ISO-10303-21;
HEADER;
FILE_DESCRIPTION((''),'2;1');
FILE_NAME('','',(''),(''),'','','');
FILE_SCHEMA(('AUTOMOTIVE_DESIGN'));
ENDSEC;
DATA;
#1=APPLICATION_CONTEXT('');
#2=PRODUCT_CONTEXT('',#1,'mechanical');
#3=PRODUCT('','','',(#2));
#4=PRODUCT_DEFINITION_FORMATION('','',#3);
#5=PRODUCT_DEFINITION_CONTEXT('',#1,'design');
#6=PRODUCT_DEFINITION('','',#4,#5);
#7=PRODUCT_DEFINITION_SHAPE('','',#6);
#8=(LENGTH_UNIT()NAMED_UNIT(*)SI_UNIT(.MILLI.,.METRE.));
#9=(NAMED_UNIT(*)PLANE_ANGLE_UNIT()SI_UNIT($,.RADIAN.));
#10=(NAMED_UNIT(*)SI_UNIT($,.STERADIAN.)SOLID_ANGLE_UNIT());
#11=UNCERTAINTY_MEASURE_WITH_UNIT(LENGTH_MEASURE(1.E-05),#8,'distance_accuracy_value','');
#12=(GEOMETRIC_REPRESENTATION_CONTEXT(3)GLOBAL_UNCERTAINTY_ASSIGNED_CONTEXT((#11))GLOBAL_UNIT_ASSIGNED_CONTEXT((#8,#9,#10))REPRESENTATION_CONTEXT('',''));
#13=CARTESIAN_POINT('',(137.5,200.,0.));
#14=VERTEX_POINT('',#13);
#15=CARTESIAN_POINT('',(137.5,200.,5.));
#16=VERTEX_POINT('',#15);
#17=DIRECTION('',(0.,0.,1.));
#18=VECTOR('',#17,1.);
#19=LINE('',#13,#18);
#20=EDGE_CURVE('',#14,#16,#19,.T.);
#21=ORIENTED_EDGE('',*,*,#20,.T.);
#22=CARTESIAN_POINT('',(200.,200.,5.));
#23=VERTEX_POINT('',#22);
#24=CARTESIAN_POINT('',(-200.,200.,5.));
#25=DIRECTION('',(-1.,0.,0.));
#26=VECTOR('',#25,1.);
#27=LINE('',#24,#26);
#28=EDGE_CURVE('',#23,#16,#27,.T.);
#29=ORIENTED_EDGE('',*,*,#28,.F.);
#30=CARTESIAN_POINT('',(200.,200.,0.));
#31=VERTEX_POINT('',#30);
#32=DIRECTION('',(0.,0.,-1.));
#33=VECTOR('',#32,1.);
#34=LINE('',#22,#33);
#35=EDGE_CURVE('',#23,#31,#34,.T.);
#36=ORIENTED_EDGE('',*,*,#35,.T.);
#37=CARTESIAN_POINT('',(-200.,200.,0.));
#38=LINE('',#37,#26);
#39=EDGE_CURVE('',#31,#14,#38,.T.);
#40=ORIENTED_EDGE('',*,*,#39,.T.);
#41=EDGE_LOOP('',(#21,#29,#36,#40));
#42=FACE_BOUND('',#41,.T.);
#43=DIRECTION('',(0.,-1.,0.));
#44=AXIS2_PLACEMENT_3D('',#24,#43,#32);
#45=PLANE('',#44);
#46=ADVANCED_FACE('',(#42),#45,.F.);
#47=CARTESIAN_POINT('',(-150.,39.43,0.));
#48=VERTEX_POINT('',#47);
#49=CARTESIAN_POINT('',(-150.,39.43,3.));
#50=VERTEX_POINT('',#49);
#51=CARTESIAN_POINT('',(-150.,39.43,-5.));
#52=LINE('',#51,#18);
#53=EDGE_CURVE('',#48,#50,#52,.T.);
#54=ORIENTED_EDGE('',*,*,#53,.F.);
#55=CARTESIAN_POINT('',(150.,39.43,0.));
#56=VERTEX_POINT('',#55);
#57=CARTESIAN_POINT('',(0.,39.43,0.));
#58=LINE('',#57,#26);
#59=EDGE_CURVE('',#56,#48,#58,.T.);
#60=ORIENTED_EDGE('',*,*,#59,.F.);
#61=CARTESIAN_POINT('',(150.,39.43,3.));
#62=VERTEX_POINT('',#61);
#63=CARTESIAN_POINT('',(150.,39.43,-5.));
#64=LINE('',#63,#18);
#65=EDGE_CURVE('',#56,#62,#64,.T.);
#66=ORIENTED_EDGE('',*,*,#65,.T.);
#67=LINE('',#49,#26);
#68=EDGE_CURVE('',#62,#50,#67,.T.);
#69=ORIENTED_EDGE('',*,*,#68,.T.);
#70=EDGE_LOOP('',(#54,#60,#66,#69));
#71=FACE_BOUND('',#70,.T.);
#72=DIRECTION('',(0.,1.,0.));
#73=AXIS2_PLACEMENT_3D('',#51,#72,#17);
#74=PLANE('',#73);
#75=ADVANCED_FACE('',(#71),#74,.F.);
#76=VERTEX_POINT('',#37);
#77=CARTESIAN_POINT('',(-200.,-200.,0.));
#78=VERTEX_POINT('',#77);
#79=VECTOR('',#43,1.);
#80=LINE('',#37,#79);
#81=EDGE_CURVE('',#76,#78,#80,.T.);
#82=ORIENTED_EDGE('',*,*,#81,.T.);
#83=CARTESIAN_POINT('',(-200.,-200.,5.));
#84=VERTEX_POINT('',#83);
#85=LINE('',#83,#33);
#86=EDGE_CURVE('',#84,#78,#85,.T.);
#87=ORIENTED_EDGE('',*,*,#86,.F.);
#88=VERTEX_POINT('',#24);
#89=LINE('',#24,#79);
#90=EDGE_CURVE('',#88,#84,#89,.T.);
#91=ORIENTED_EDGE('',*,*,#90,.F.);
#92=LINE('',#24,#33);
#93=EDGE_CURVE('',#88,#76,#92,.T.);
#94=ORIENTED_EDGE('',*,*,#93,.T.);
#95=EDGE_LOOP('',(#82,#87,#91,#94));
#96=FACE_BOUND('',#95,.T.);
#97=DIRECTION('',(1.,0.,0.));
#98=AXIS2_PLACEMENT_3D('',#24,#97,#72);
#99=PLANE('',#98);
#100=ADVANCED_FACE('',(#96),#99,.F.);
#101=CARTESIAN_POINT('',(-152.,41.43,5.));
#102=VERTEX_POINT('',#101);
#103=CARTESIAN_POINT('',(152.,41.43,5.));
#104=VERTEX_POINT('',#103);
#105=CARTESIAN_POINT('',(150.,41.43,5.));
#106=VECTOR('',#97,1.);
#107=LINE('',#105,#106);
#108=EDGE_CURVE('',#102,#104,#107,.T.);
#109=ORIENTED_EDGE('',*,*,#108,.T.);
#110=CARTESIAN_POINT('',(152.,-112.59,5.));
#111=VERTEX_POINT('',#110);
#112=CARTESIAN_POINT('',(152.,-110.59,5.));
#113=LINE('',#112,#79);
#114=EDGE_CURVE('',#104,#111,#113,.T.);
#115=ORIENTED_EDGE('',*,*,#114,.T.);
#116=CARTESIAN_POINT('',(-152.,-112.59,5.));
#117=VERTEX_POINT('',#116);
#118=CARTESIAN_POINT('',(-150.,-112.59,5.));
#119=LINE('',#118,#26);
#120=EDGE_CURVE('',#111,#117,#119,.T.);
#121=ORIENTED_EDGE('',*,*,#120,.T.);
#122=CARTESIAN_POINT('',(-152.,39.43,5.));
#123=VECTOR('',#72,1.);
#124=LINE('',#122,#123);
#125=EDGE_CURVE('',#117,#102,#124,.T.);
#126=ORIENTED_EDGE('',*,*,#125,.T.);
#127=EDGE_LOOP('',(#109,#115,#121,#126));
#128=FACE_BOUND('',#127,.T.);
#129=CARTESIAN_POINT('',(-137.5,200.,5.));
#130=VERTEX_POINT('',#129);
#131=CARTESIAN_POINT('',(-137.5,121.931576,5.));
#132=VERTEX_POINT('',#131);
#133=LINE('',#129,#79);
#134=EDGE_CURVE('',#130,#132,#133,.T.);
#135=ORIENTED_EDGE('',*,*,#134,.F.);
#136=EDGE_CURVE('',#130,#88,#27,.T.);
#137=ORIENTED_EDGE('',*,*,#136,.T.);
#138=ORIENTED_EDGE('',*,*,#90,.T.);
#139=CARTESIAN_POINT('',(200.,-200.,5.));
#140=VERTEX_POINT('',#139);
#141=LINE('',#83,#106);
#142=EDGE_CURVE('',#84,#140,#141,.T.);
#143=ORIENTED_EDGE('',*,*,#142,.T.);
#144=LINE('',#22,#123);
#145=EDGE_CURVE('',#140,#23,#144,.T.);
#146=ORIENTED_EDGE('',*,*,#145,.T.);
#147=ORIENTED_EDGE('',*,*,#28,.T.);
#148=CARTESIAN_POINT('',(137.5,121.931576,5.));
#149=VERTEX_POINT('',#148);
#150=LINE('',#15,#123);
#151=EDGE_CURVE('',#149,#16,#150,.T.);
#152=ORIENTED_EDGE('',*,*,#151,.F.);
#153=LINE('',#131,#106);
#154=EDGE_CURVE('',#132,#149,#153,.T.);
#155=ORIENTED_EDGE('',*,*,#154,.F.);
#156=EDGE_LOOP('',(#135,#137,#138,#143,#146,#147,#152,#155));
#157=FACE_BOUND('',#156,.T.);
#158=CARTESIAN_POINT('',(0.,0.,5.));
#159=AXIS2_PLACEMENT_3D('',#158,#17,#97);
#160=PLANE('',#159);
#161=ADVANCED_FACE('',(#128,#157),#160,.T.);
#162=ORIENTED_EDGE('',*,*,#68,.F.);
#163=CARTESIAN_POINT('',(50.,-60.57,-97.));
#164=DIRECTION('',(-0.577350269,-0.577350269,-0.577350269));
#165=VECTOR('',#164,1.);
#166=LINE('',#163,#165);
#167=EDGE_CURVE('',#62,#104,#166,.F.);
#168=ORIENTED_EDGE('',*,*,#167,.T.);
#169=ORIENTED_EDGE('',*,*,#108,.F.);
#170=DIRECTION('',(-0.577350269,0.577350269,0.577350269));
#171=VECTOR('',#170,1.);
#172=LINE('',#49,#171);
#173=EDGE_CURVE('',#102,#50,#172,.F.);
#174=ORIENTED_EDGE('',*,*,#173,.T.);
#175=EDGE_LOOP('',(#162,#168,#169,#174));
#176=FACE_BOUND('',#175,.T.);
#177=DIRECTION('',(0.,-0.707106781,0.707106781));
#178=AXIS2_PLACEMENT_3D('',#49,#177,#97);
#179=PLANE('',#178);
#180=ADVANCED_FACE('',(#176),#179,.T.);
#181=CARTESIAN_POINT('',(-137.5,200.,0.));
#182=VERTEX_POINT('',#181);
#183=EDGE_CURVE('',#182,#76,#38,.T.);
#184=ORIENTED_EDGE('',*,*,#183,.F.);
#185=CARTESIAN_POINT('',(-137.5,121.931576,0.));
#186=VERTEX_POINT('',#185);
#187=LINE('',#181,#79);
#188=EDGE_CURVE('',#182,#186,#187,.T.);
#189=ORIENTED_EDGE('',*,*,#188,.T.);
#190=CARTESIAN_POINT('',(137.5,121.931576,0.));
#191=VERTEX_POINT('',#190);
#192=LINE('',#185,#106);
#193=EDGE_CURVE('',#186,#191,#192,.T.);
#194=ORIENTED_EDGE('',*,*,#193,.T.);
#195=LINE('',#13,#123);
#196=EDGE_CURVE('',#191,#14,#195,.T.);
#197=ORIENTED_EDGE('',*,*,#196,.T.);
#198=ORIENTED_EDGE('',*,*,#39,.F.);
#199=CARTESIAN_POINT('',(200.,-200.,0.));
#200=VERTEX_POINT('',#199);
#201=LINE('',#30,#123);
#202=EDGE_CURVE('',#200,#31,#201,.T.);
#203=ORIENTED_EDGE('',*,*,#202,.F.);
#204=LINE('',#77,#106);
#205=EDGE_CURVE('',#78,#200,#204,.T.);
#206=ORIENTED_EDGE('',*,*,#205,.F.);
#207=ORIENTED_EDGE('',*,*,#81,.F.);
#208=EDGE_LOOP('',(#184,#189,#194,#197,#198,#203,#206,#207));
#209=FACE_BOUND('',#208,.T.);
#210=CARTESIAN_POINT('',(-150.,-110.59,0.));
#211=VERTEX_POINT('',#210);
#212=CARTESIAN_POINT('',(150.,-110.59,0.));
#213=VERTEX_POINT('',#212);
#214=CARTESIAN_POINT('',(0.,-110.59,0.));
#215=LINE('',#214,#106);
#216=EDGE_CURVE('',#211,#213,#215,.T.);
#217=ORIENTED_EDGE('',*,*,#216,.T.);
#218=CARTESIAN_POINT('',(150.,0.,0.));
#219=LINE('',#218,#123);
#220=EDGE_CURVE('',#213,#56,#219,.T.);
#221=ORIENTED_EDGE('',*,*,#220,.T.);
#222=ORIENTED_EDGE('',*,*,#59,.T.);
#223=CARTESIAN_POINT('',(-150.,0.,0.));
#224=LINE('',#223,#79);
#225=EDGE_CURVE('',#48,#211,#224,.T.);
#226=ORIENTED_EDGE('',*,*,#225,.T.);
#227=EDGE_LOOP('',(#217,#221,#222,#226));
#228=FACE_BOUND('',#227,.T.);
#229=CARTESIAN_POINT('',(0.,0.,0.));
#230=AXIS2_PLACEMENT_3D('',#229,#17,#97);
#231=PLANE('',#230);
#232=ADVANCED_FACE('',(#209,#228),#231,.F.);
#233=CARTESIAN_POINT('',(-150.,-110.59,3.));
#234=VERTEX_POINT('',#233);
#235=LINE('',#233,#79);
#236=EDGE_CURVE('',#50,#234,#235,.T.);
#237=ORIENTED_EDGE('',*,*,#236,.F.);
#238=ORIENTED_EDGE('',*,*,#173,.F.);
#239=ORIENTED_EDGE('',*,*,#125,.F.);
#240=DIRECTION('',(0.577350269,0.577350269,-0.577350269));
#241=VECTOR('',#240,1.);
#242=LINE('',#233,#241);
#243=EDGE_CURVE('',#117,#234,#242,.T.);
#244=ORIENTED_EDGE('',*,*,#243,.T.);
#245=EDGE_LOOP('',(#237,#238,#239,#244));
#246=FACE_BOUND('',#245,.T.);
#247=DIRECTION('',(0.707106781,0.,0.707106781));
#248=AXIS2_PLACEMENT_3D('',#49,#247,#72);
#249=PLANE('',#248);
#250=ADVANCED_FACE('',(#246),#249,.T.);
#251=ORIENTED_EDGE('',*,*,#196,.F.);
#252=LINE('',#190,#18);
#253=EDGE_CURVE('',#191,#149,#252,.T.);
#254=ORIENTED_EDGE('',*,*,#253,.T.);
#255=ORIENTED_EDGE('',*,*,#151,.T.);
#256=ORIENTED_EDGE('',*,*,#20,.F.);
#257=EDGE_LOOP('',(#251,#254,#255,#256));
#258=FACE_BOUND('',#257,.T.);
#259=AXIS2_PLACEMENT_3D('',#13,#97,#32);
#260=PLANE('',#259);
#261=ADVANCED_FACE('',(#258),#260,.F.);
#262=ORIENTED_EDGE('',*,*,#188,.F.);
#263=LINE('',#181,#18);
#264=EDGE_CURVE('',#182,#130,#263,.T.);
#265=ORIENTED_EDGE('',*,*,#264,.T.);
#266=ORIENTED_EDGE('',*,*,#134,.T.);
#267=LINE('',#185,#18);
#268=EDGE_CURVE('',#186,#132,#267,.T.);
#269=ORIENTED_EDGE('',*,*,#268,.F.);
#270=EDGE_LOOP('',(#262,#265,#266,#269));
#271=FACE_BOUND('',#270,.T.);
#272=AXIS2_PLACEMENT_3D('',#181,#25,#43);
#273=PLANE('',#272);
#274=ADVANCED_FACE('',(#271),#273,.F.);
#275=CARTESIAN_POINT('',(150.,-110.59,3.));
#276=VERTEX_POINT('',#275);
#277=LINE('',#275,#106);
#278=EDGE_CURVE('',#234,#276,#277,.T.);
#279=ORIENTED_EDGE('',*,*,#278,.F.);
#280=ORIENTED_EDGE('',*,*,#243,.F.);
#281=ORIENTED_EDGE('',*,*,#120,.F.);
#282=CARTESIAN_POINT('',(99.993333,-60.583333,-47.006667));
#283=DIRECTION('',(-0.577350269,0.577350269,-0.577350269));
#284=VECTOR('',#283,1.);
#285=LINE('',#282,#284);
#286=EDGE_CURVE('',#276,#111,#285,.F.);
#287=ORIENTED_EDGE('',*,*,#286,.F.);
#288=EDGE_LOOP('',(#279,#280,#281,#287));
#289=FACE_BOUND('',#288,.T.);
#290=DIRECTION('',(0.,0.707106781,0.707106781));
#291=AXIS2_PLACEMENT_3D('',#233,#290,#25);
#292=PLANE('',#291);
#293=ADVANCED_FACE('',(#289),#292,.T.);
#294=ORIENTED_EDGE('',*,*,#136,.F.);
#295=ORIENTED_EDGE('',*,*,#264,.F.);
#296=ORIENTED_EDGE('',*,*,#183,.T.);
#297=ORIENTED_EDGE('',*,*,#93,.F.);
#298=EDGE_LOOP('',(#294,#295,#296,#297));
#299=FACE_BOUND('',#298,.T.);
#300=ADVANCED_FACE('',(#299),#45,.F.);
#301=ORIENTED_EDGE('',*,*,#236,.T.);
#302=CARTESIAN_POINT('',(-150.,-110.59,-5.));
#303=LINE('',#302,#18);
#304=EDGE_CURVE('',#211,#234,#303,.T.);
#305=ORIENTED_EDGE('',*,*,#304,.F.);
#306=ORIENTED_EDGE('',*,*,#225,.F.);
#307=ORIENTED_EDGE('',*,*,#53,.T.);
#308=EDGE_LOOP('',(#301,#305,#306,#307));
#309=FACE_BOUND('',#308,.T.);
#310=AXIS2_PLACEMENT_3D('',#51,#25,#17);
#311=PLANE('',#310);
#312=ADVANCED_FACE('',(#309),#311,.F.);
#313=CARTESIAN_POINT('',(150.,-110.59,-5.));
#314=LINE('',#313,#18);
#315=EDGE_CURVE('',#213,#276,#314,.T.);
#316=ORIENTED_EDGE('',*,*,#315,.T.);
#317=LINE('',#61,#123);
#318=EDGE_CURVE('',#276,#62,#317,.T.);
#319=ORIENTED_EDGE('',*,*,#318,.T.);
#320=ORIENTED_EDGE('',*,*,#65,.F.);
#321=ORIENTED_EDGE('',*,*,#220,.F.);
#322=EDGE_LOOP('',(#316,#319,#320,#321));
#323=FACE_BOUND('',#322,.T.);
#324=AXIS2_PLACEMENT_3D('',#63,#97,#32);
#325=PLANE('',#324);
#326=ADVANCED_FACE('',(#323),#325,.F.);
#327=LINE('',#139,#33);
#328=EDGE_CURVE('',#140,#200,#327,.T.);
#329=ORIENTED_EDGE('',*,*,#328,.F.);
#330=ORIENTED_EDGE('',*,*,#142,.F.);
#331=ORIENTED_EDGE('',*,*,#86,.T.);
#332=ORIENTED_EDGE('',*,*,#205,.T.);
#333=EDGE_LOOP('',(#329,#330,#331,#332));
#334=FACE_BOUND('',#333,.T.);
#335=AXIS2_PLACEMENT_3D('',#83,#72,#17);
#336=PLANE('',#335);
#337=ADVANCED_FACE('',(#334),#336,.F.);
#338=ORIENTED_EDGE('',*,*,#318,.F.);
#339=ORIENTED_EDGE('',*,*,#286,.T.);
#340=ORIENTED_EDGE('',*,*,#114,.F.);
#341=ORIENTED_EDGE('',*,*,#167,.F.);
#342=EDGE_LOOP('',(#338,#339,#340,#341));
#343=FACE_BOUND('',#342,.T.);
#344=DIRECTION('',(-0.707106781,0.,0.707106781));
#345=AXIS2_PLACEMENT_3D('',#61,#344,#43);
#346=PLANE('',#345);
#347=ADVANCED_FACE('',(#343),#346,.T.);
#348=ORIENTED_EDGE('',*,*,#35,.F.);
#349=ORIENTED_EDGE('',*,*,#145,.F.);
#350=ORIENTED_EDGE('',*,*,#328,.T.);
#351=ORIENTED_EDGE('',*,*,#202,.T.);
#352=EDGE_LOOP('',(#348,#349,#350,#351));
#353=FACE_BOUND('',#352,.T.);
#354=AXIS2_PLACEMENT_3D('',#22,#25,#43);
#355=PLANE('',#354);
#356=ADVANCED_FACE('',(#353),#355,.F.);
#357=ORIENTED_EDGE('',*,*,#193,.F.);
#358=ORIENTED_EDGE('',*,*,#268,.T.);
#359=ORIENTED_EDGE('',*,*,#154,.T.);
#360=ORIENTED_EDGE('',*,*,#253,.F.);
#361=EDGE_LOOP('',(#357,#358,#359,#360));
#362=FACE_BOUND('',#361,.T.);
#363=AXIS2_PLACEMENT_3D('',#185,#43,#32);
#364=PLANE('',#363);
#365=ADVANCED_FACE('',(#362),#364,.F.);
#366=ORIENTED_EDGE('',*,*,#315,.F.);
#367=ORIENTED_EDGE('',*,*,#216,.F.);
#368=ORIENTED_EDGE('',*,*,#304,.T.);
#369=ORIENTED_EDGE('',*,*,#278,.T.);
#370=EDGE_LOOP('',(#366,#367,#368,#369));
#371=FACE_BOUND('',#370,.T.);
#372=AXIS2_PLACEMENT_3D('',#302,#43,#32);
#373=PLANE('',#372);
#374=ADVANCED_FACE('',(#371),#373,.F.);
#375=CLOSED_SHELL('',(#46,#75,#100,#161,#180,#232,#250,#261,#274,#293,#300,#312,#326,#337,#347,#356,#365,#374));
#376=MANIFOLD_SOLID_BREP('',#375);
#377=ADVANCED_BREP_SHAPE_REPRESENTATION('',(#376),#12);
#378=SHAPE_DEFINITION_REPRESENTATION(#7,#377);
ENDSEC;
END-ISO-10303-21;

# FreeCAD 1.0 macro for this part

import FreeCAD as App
import Part
import Sketcher
Q = App.Units.Quantity


def edges_at(feature, points):
    """Names of the edges that pass closest to the given points."""
    edges = feature.Shape.Edges
    near = lambda p: min(range(len(edges)), key=lambda i: edges[i].distToShape(Part.Vertex(*p))[0])
    return sorted({f"Edge{near(p) + 1}" for p in points})

doc = App.newDocument("Part")
params = doc.addObject("Spreadsheet::Sheet", "Params")
for row, (alias, value) in enumerate([
    ("sketch1_width", "400 mm"),
    ("pad1_length", "5 mm"),
    ("sketch2_width", "300 mm"),
    ("sketch2_height", "150.02 mm"),
    ("pocket1_length", "10 mm"),
    ("chamfer_size", "2 mm"),
    ("sketch3_width", "275 mm"),
], start=1):
    params.set(f"A{row}", alias)
    params.set(f"B{row}", "=" + value)
    params.setAlias(f"B{row}", alias)

body = doc.addObject("PartDesign::Body", "Body")

sketch1 = body.newObject("Sketcher::SketchObject", "Sketch")
sketch1.AttachmentSupport = (doc.getObject("XY_Plane"), [""])
sketch1.MapMode = "FlatFace"
sketch1.addGeometry([
    Part.LineSegment(App.Vector(-200, 200, 0), App.Vector(-200, -200, 0)),
    Part.LineSegment(App.Vector(-200, -200, 0), App.Vector(200, -200, 0)),
    Part.LineSegment(App.Vector(200, -200, 0), App.Vector(200, 200, 0)),
    Part.LineSegment(App.Vector(200, 200, 0), App.Vector(-200, 200, 0)),
], False)
sketch1.addConstraint([
    Sketcher.Constraint("Coincident", 0, 2, 1, 1),
    Sketcher.Constraint("Coincident", 1, 2, 2, 1),
    Sketcher.Constraint("Coincident", 2, 2, 3, 1),
    Sketcher.Constraint("Coincident", 3, 2, 0, 1),
    Sketcher.Constraint("Vertical", 0),
    Sketcher.Constraint("Horizontal", 1),
    Sketcher.Constraint("Vertical", 2),
    Sketcher.Constraint("Horizontal", 3),
    Sketcher.Constraint("Symmetric", 0, 2, 2, 2, -1, 1),
    Sketcher.Constraint("Equal", 3, 0),
    Sketcher.Constraint("DistanceX", 1, 1, 1, 2, Q("400 mm")),
])
sketch1.setExpression("Constraints[10]", "Params.sketch1_width")
pad1 = body.newObject("PartDesign::Pad", "Pad")
pad1.Profile = sketch1
pad1.setExpression("Length", "Params.pad1_length")

sketch2 = body.newObject("Sketcher::SketchObject", "Sketch001")
sketch2.AttachmentSupport = (doc.getObject("XY_Plane"), [""])
sketch2.MapMode = "FlatFace"
sketch2.AttachmentOffset = App.Placement(App.Vector(0, 0, 5), App.Rotation())
sketch2.addGeometry([
    Part.LineSegment(App.Vector(-150, 39, 0), App.Vector(-150, -111, 0)),
    Part.LineSegment(App.Vector(-150, -111, 0), App.Vector(150, -111, 0)),
    Part.LineSegment(App.Vector(150, -111, 0), App.Vector(150, 39, 0)),
    Part.LineSegment(App.Vector(150, 39, 0), App.Vector(-150, 39, 0)),
], False)
sketch2.addConstraint([
    Sketcher.Constraint("Coincident", 0, 2, 1, 1),
    Sketcher.Constraint("Coincident", 1, 2, 2, 1),
    Sketcher.Constraint("Coincident", 2, 2, 3, 1),
    Sketcher.Constraint("Coincident", 3, 2, 0, 1),
    Sketcher.Constraint("Vertical", 0),
    Sketcher.Constraint("Horizontal", 1),
    Sketcher.Constraint("Vertical", 2),
    Sketcher.Constraint("Horizontal", 3),
    Sketcher.Constraint("DistanceX", 1, 1, 1, 2, Q("300 mm")),
    Sketcher.Constraint("DistanceX", 0, 2, -1, 1, Q("150 mm")),
    Sketcher.Constraint("DistanceY", 0, 2, 0, 1, Q("150.02 mm")),
    Sketcher.Constraint("DistanceY", 0, 2, -1, 1, Q("110.59 mm")),
])
sketch2.setExpression("Constraints[8]", "Params.sketch2_width")
sketch2.setExpression("Constraints[10]", "Params.sketch2_height")
pocket1 = body.newObject("PartDesign::Pocket", "Pocket")
pocket1.Profile = sketch2
pocket1.setExpression("Length", "Params.pocket1_length")
doc.recompute()

chamfer = body.newObject("PartDesign::Chamfer", "Chamfer")
chamfer.Base = (pocket1, edges_at(pocket1, [
    (150, -35.58, 5),
    (0, 39.43, 5),
    (-150, -35.58, 5),
    (0, -110.59, 5),
]))
chamfer.setExpression("Size", "Params.chamfer_size")

sketch3 = body.newObject("Sketcher::SketchObject", "Sketch002")
sketch3.AttachmentSupport = (doc.getObject("XY_Plane"), [""])
sketch3.MapMode = "FlatFace"
sketch3.AttachmentOffset = App.Placement(App.Vector(0, 0, 5), App.Rotation())
sketch3.addGeometry([
    Part.LineSegment(App.Vector(-138, 200, 0), App.Vector(-138, 122, 0)),
    Part.LineSegment(App.Vector(-138, 122, 0), App.Vector(138, 122, 0)),
    Part.LineSegment(App.Vector(138, 122, 0), App.Vector(138, 200, 0)),
    Part.LineSegment(App.Vector(138, 200, 0), App.Vector(-138, 200, 0)),
], False)
sketch3.addConstraint([
    Sketcher.Constraint("Coincident", 0, 2, 1, 1),
    Sketcher.Constraint("Coincident", 1, 2, 2, 1),
    Sketcher.Constraint("Coincident", 2, 2, 3, 1),
    Sketcher.Constraint("Coincident", 3, 2, 0, 1),
    Sketcher.Constraint("Vertical", 0),
    Sketcher.Constraint("Horizontal", 1),
    Sketcher.Constraint("Vertical", 2),
    Sketcher.Constraint("Horizontal", 3),
    Sketcher.Constraint("DistanceX", 1, 1, 1, 2, Q("275 mm")),
    Sketcher.Constraint("DistanceY", -1, 1, 2, 2, Q("200 mm")),
    Sketcher.Constraint("DistanceX", 0, 2, -1, 1, Q("137.5 mm")),
    Sketcher.Constraint("DistanceY", 0, 2, 0, 1, Q("78.068424 mm")),
])
sketch3.setExpression("Constraints[8]", "Params.sketch3_width")
pocket2 = body.newObject("PartDesign::Pocket", "Pocket001")
pocket2.Profile = sketch3
pocket2.Type = "ThroughAll"

doc.recompute()
